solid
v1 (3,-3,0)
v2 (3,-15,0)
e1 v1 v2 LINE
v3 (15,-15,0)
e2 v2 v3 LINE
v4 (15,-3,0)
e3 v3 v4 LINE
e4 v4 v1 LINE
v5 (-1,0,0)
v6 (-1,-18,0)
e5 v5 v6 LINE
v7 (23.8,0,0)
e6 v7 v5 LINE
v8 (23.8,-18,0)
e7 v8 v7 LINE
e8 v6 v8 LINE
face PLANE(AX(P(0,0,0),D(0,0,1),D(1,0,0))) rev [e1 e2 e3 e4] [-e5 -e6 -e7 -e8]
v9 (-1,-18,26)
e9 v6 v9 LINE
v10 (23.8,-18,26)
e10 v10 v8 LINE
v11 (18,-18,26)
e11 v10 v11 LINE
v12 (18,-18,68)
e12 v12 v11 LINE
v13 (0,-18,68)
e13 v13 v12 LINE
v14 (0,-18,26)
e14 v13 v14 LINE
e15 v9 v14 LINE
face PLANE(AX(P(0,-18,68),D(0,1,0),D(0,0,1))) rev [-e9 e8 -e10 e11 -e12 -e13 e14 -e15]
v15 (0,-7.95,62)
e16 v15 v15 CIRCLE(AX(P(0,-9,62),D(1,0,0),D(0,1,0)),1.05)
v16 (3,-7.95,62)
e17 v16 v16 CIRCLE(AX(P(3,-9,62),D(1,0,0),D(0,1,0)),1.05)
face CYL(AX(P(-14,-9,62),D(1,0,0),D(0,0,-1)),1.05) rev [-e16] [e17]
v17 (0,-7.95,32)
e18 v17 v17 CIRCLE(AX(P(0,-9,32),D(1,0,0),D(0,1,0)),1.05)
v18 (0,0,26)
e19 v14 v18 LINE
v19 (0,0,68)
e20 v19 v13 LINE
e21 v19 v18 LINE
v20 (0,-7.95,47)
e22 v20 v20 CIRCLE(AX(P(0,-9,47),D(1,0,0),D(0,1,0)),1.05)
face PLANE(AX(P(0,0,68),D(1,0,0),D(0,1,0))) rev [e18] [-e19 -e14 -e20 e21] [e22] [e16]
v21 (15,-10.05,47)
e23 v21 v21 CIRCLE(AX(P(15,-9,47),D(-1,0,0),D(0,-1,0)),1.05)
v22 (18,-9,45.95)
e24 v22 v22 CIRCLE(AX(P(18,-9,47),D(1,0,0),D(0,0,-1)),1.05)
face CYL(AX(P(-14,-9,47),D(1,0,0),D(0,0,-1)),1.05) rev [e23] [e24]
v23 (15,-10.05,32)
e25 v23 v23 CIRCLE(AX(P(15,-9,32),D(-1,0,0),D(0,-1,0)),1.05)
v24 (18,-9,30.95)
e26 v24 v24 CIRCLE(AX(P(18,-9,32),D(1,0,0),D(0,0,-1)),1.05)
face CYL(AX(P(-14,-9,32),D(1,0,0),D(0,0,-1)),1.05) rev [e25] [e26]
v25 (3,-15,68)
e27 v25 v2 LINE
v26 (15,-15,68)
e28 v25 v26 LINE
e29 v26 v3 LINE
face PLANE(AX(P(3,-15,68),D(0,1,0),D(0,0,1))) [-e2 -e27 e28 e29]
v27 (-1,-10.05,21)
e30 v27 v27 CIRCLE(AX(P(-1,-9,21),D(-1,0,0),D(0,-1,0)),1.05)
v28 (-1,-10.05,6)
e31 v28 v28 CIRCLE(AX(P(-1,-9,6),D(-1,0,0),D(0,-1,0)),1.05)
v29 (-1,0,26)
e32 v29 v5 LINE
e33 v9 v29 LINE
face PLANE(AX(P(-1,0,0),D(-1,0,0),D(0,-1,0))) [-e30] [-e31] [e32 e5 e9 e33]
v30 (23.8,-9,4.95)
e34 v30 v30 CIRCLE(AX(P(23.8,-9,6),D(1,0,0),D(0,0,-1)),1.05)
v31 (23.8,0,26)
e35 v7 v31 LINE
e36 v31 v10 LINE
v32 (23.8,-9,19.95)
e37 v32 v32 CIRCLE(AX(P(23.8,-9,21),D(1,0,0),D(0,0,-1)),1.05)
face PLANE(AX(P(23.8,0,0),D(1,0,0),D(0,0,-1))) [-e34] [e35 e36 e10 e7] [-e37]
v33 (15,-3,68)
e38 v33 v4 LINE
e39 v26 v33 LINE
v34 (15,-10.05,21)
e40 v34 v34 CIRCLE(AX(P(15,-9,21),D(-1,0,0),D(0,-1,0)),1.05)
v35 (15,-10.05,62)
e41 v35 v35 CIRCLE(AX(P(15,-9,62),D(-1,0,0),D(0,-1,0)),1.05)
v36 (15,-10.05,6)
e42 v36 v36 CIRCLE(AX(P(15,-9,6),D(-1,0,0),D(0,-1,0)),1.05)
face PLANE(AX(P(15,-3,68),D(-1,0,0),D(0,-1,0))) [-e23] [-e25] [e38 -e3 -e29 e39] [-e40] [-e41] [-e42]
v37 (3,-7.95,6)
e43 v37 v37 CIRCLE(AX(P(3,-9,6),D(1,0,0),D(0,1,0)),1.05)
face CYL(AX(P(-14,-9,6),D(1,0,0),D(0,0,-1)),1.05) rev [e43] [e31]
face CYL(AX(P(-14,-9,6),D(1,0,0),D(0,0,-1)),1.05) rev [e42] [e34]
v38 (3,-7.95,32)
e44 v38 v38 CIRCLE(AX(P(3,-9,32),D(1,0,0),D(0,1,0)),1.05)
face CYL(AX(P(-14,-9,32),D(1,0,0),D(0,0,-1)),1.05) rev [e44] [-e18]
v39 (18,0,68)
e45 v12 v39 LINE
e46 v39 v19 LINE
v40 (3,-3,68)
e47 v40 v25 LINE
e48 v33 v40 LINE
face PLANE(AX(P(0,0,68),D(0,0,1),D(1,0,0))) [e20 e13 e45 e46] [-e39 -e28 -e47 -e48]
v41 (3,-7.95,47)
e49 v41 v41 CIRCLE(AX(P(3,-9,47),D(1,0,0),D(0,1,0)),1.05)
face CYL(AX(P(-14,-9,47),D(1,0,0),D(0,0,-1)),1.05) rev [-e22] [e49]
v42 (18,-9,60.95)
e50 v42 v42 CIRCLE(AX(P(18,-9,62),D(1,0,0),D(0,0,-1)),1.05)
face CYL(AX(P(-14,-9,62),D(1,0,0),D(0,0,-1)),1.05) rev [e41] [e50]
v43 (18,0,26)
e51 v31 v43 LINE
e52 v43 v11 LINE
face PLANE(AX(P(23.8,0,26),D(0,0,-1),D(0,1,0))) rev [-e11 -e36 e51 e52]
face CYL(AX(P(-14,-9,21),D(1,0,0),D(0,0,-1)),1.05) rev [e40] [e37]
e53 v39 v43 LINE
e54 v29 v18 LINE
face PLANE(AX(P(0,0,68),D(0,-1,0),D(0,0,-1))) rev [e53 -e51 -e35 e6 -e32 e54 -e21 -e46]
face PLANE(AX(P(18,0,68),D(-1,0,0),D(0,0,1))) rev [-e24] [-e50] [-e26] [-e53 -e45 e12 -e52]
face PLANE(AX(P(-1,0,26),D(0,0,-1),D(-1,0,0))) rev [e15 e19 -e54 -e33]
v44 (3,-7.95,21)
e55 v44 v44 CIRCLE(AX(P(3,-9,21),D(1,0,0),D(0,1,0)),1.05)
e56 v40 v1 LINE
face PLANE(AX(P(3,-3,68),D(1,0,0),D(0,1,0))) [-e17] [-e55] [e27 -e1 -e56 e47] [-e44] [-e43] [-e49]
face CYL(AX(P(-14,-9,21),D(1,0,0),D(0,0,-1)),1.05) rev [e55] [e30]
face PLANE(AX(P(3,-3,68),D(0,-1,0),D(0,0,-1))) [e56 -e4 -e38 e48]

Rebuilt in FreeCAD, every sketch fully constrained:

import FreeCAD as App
import Part
import Sketcher

V = App.Vector
Q = App.Units.Quantity


def add_polygon(sketch, points):
    """Adds a closed chain of lines whose ends are joined by coincident constraints."""
    first, n = sketch.GeometryCount, len(points)
    for a, b in zip(points, points[1:] + points[:1]):
        sketch.addGeometry(Part.LineSegment(App.Vector(*a, 0), App.Vector(*b, 0)), False)
    for i in range(n):
        sketch.addConstraint(Sketcher.Constraint("Coincident", first + i, 2, first + (i + 1) % n, 1))

doc = App.newDocument("Part")
params = doc.addObject("Spreadsheet::Sheet", "Params")
for row, (alias, value) in enumerate([
    ("sketch1_width", "18 mm"),
    ("sketch1_width2", "12 mm"),
    ("pad1_length", "68 mm"),
    ("sketch2_diameter", "2.1 mm"),
    ("pocket1_length", "32 mm"),
    ("sketch3_width", "18 mm"),
    ("sketch3_height", "26 mm"),
    ("pad2_length", "5.8 mm"),
    ("sketch4_width", "18 mm"),
    ("sketch4_height", "26 mm"),
    ("pad3_length", "1 mm"),
    ("sketch5_diameter", "2.1 mm"),
    ("pocket2_length", "41 mm"),
], start=1):
    params.set(f"A{row}", alias)
    params.set(f"B{row}", "=" + value)
    params.setAlias(f"B{row}", alias)

body = doc.addObject("PartDesign::Body", "Body")

# Sketch on XY plane
sketch1 = doc.addObject("Sketcher::SketchObject", "Sketch")
body.addObject(sketch1)
sketch1.AttachmentSupport = (doc.XY_Plane, [""])
sketch1.MapMode = "FlatFace"
add_polygon(sketch1, [(0, 0), (0, -18), (18, -18), (18, 0)])  # lines 0-3
add_polygon(sketch1, [(15, -15), (3, -15), (3, -3), (15, -3)])  # lines 4-7
sketch1.addConstraint(Sketcher.Constraint("Vertical", 0))
sketch1.addConstraint(Sketcher.Constraint("Horizontal", 1))
sketch1.addConstraint(Sketcher.Constraint("Vertical", 2))
sketch1.addConstraint(Sketcher.Constraint("Horizontal", 3))
sketch1.addConstraint(Sketcher.Constraint("Horizontal", 4))
sketch1.addConstraint(Sketcher.Constraint("Vertical", 5))
sketch1.addConstraint(Sketcher.Constraint("Horizontal", 6))
sketch1.addConstraint(Sketcher.Constraint("Vertical", 7))
sketch1.addConstraint(Sketcher.Constraint("Coincident", 3, 2, -1, 1))
sketch1.addConstraint(Sketcher.Constraint("Equal", 3, 0))
sketch1.addConstraint(Sketcher.Constraint("Equal", 6, 5))
sketch1.addConstraint(Sketcher.Constraint("DistanceX", 1, 1, 1, 2, Q("18 mm")))
sketch1.addConstraint(Sketcher.Constraint("DistanceX", 4, 2, 4, 1, Q("12 mm")))
sketch1.addConstraint(Sketcher.Constraint("DistanceX", -1, 1, 4, 2, Q("3 mm")))
sketch1.addConstraint(Sketcher.Constraint("DistanceY", 4, 2, -1, 1, Q("15 mm")))
sketch1.setExpression("Constraints[19]", "Params.sketch1_width")
sketch1.setExpression("Constraints[20]", "Params.sketch1_width2")
pad1 = doc.addObject("PartDesign::Pad", "Pad")
body.addObject(pad1)
pad1.Profile = sketch1
pad1.setExpression("Length", "Params.pad1_length")

# Sketch on YZ plane
sketch2 = doc.addObject("Sketcher::SketchObject", "Sketch001")
body.addObject(sketch2)
sketch2.AttachmentSupport = (doc.YZ_Plane, [""])
sketch2.MapMode = "FlatFace"
sketch2.AttachmentOffset = App.Placement(V(0, 0, 18), App.Rotation())
sketch2.addGeometry(Part.Circle(V(-9, 62, 0), V(0, 0, 1), 1.1), False)
sketch2.addGeometry(Part.Circle(V(-9, 47, 0), V(0, 0, 1), 1.1), False)
sketch2.addGeometry(Part.Circle(V(-9, 32, 0), V(0, 0, 1), 1.1), False)
sketch2.addGeometry(Part.Circle(V(-9, 6, 0), V(0, 0, 1), 1.1), False)
sketch2.addGeometry(Part.Circle(V(-9, 21, 0), V(0, 0, 1), 1.1), False)
sketch2.addConstraint(Sketcher.Constraint("Equal", 0, 1))
sketch2.addConstraint(Sketcher.Constraint("Equal", 1, 2))
sketch2.addConstraint(Sketcher.Constraint("Equal", 2, 3))
sketch2.addConstraint(Sketcher.Constraint("Equal", 3, 4))
sketch2.addConstraint(Sketcher.Constraint("Vertical", 0, 3, 1, 3))
sketch2.addConstraint(Sketcher.Constraint("Vertical", 1, 3, 2, 3))
sketch2.addConstraint(Sketcher.Constraint("Vertical", 2, 3, 3, 3))
sketch2.addConstraint(Sketcher.Constraint("Vertical", 3, 3, 4, 3))
sketch2.addConstraint(Sketcher.Constraint("Diameter", 0, Q("2.1 mm")))
sketch2.addConstraint(Sketcher.Constraint("DistanceX", 0, 3, -1, 1, Q("9 mm")))
sketch2.addConstraint(Sketcher.Constraint("DistanceY", -1, 1, 0, 3, Q("62 mm")))
sketch2.addConstraint(Sketcher.Constraint("DistanceY", -1, 1, 1, 3, Q("47 mm")))
sketch2.addConstraint(Sketcher.Constraint("DistanceY", -1, 1, 2, 3, Q("32 mm")))
sketch2.addConstraint(Sketcher.Constraint("DistanceY", -1, 1, 3, 3, Q("6 mm")))
sketch2.addConstraint(Sketcher.Constraint("DistanceY", -1, 1, 4, 3, Q("21 mm")))
sketch2.setExpression("Constraints[8]", "Params.sketch2_diameter")
pocket1 = doc.addObject("PartDesign::Pocket", "Pocket")
body.addObject(pocket1)
pocket1.Profile = sketch2
pocket1.setExpression("Length", "Params.pocket1_length")

# Sketch on YZ plane
sketch3 = doc.addObject("Sketcher::SketchObject", "Sketch002")
body.addObject(sketch3)
sketch3.AttachmentSupport = (doc.YZ_Plane, [""])
sketch3.MapMode = "FlatFace"
sketch3.AttachmentOffset = App.Placement(V(0, 0, 18), App.Rotation())
add_polygon(sketch3, [(0, 26), (-18, 26), (-18, 0), (0, 0)])  # lines 0-3
sketch3.addConstraint(Sketcher.Constraint("Horizontal", 0))
sketch3.addConstraint(Sketcher.Constraint("Vertical", 1))
sketch3.addConstraint(Sketcher.Constraint("Horizontal", 2))
sketch3.addConstraint(Sketcher.Constraint("Vertical", 3))
sketch3.addConstraint(Sketcher.Constraint("Coincident", 2, 2, -1, 1))
sketch3.addConstraint(Sketcher.Constraint("DistanceX", 0, 2, 0, 1, Q("18 mm")))
sketch3.addConstraint(Sketcher.Constraint("DistanceY", 1, 2, 1, 1, Q("26 mm")))
sketch3.setExpression("Constraints[9]", "Params.sketch3_width")
sketch3.setExpression("Constraints[10]", "Params.sketch3_height")
pad2 = doc.addObject("PartDesign::Pad", "Pad001")
body.addObject(pad2)
pad2.Profile = sketch3
pad2.setExpression("Length", "Params.pad2_length")

# Sketch on YZ plane
sketch4 = doc.addObject("Sketcher::SketchObject", "Sketch003")
body.addObject(sketch4)
sketch4.AttachmentSupport = (doc.YZ_Plane, [""])
sketch4.MapMode = "FlatFace"
add_polygon(sketch4, [(0, 0), (-18, 0), (-18, 26), (0, 26)])  # lines 0-3
sketch4.addConstraint(Sketcher.Constraint("Horizontal", 0))
sketch4.addConstraint(Sketcher.Constraint("Vertical", 1))
sketch4.addConstraint(Sketcher.Constraint("Horizontal", 2))
sketch4.addConstraint(Sketcher.Constraint("Vertical", 3))
sketch4.addConstraint(Sketcher.Constraint("Coincident", 3, 2, -1, 1))
sketch4.addConstraint(Sketcher.Constraint("DistanceX", 0, 2, 0, 1, Q("18 mm")))
sketch4.addConstraint(Sketcher.Constraint("DistanceY", 1, 1, 1, 2, Q("26 mm")))
sketch4.setExpression("Constraints[9]", "Params.sketch4_width")
sketch4.setExpression("Constraints[10]", "Params.sketch4_height")
pad3 = doc.addObject("PartDesign::Pad", "Pad002")
body.addObject(pad3)
pad3.Profile = sketch4
pad3.setExpression("Length", "Params.pad3_length")
pad3.Reversed = True

# Sketch on YZ plane
sketch5 = doc.addObject("Sketcher::SketchObject", "Sketch004")
body.addObject(sketch5)
sketch5.AttachmentSupport = (doc.YZ_Plane, [""])
sketch5.MapMode = "FlatFace"
sketch5.AttachmentOffset = App.Placement(V(0, 0, 23.8), App.Rotation())
sketch5.addGeometry(Part.Circle(V(-9, 6, 0), V(0, 0, 1), 1.1), False)
sketch5.addGeometry(Part.Circle(V(-9, 21, 0), V(0, 0, 1), 1.1), False)
sketch5.addConstraint(Sketcher.Constraint("Equal", 0, 1))
sketch5.addConstraint(Sketcher.Constraint("Vertical", 0, 3, 1, 3))
sketch5.addConstraint(Sketcher.Constraint("Diameter", 0, Q("2.1 mm")))
sketch5.addConstraint(Sketcher.Constraint("DistanceX", 0, 3, -1, 1, Q("9 mm")))
sketch5.addConstraint(Sketcher.Constraint("DistanceY", -1, 1, 0, 3, Q("6 mm")))
sketch5.addConstraint(Sketcher.Constraint("DistanceY", -1, 1, 1, 3, Q("21 mm")))
sketch5.setExpression("Constraints[2]", "Params.sketch5_diameter")
pocket2 = doc.addObject("PartDesign::Pocket", "Pocket001")
body.addObject(pocket2)
pocket2.Profile = sketch5
pocket2.setExpression("Length", "Params.pocket2_length")

doc.recompute()
